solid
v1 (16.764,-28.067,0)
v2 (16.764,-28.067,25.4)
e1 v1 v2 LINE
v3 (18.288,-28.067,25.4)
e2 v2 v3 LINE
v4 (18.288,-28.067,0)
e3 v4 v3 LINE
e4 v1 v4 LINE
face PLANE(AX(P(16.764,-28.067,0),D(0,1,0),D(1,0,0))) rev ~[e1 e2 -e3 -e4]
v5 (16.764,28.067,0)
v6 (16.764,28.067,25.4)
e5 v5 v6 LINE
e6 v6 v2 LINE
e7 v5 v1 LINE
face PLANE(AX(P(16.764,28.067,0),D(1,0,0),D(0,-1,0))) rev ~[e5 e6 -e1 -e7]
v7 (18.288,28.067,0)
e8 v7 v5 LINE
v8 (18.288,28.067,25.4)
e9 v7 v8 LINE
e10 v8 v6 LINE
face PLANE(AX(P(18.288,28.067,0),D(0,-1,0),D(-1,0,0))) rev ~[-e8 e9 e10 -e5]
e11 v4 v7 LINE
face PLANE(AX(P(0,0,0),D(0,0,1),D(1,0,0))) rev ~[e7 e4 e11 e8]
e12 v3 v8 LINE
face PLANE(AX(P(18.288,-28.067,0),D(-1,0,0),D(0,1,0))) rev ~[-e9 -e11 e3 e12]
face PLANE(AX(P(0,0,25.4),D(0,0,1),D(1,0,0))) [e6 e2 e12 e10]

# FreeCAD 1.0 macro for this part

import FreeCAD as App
import Part
import Sketcher
Q = App.Units.Quantity


def add_polygon(sketch, points):
    """Adds a closed chain of lines whose ends are joined by coincident constraints."""
    first, n = sketch.GeometryCount, len(points)
    for a, b in zip(points, points[1:] + points[:1]):
        sketch.addGeometry(Part.LineSegment(App.Vector(*a, 0), App.Vector(*b, 0)), False)
    for i in range(n):
        sketch.addConstraint(Sketcher.Constraint("Coincident", first + i, 2, first + (i + 1) % n, 1))

doc = App.newDocument("Part")
params = doc.addObject("Spreadsheet::Sheet", "Params")
for row, (alias, value) in enumerate([
    ("sketch1_width", "0.06 in"),
    ("sketch1_height", "2.21 in"),
    ("pad1_length", "1 in"),
], start=1):
    params.set(f"A{row}", alias)
    params.set(f"B{row}", "=" + value)
    params.setAlias(f"B{row}", alias)

body = doc.addObject("PartDesign::Body", "Body")

sketch1 = body.newObject("Sketcher::SketchObject", "Sketch")
sketch1.AttachmentSupport = (doc.getObject("XY_Plane"), [""])
sketch1.MapMode = "FlatFace"
add_polygon(sketch1, [(16.764, 28.067), (16.764, -28.067), (18.288, -28.067), (18.288, 28.067)])
sketch1.addConstraint(Sketcher.Constraint("Vertical", 0))
sketch1.addConstraint(Sketcher.Constraint("Horizontal", 1))
sketch1.addConstraint(Sketcher.Constraint("Vertical", 2))
sketch1.addConstraint(Sketcher.Constraint("Horizontal", 3))
sketch1.addConstraint(Sketcher.Constraint("DistanceX", 1, 1, 1, 2, Q("0.06 in")))
sketch1.addConstraint(Sketcher.Constraint("DistanceY", 0, 2, 0, 1, Q("2.21 in")))
sketch1.addConstraint(Sketcher.Constraint("DistanceX", -1, 1, 0, 2, Q("0.66 in")))
sketch1.addConstraint(Sketcher.Constraint("DistanceY", 0, 2, -1, 1, Q("1.105 in")))
sketch1.setExpression("Constraints[8]", "Params.sketch1_width")
sketch1.setExpression("Constraints[9]", "Params.sketch1_height")
pad1 = body.newObject("PartDesign::Pad", "Pad")
pad1.Profile = sketch1
pad1.setExpression("Length", "Params.pad1_length")

doc.recompute()
